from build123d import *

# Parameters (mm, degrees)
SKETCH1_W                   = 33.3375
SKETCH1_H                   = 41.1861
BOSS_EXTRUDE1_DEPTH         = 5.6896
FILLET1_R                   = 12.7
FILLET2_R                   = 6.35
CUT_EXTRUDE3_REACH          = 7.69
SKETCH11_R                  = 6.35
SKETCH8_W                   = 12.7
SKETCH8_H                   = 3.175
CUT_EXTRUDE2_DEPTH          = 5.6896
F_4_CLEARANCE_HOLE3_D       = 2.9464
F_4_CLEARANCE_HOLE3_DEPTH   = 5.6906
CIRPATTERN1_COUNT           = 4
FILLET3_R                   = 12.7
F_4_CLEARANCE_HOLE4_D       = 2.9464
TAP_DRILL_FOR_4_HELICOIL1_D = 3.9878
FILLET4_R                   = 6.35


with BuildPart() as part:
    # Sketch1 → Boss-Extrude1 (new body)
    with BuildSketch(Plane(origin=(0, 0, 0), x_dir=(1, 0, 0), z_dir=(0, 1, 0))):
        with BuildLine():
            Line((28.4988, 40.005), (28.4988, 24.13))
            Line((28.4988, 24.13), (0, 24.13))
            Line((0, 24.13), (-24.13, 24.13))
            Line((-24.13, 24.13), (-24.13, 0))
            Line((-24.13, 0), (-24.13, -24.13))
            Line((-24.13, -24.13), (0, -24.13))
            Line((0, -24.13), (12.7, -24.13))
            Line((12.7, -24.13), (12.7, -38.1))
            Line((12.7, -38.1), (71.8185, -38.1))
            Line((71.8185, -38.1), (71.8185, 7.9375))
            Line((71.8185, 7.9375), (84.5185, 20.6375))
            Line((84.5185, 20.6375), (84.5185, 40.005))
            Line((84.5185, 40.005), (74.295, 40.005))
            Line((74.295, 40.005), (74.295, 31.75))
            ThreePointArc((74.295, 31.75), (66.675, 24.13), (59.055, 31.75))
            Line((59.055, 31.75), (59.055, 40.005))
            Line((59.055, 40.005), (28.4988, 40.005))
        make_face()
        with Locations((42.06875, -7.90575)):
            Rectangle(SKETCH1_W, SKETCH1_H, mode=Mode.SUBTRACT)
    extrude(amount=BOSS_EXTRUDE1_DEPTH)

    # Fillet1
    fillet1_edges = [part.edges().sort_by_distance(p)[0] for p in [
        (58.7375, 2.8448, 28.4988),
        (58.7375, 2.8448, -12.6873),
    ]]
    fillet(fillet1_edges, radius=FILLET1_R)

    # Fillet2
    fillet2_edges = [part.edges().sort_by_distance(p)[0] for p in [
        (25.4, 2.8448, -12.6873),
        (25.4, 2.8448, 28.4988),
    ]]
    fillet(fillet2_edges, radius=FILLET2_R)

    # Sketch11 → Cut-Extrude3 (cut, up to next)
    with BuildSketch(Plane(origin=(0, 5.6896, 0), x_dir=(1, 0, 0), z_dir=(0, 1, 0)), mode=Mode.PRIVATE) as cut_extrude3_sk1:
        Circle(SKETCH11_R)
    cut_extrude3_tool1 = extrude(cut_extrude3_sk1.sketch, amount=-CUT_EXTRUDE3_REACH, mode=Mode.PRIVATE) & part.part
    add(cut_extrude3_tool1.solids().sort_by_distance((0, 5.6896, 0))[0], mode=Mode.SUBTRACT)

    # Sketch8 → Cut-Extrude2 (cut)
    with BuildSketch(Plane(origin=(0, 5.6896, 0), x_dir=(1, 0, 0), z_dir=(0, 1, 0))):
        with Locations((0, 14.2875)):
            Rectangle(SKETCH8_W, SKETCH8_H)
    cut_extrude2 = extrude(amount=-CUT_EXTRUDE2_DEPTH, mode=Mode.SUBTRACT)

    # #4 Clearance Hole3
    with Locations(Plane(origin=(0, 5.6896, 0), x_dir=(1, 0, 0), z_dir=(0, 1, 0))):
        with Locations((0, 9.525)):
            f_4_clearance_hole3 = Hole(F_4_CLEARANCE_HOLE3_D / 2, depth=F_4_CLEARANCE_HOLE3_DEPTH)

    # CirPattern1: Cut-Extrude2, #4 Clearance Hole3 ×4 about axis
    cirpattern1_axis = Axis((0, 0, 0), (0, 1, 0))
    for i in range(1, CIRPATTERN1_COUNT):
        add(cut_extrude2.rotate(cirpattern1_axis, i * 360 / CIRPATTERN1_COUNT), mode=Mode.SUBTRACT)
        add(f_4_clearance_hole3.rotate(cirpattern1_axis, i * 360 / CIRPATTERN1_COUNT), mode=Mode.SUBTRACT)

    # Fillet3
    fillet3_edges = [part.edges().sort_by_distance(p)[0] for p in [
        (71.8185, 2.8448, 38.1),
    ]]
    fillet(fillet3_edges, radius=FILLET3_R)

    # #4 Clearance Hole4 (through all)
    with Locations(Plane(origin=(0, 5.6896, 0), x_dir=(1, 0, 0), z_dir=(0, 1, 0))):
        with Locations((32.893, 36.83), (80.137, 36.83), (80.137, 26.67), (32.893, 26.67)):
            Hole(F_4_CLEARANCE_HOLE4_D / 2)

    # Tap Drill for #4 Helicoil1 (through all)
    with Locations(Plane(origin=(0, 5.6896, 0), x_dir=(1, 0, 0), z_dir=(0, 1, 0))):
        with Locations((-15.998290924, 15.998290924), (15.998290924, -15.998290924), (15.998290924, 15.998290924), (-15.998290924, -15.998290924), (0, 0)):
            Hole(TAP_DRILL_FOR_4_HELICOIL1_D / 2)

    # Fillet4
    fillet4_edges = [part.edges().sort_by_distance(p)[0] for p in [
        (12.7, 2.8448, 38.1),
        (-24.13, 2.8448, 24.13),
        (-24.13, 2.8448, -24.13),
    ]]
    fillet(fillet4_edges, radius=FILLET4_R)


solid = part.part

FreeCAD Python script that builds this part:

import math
import FreeCAD as App
import Part
import Sketcher
from FreeCAD import Vector
Q = App.Units.Quantity


def edges_at(feature, points):
    """Names of the edges that pass closest to the given points."""
    edges = feature.Shape.Edges
    near = lambda p: min(range(len(edges)), key=lambda i: edges[i].distToShape(Part.Vertex(*p))[0])
    return sorted({f"Edge{near(p) + 1}" for p in points})


def add_polygon(sketch, points):
    """Adds a closed chain of lines whose ends are joined by coincident constraints."""
    first, n = sketch.GeometryCount, len(points)
    for a, b in zip(points, points[1:] + points[:1]):
        sketch.addGeometry(Part.LineSegment(App.Vector(*a, 0), App.Vector(*b, 0)), False)
    for i in range(n):
        sketch.addConstraint(Sketcher.Constraint("Coincident", first + i, 2, first + (i + 1) % n, 1))

doc = App.newDocument("Part")
params = doc.addObject("Spreadsheet::Sheet", "Params")
for row, (alias, value) in enumerate([
    ("sketch1_radius", "0.3 in"),
    ("sketch1_height", "1.9 in"),
    ("sketch1_width", "1.45 in"),
    ("sketch1_height2", "0.55 in"),
    ("sketch1_width2", "2.072 in"),
    ("pad1_length", "0.224 in"),
    ("fillet_radius", "0.5 in"),
    ("fillet2_radius", "0.25 in"),
    ("sketch2_diameter", "0.5 in"),
    ("sketch3_width", "0.5 in"),
    ("sketch3_height", "0.125 in"),
    ("pocket2_length", "0.224 in"),
    ("sketch4_diameter", "0.116 in"),
    ("hole_diameter", "0.116 in"),
    ("hole_depth", "5.6906 mm"),
    ("fillet3_radius", "0.5 in"),
    ("sketch5_diameter", "0.116 in"),
    ("hole2_diameter", "0.116 in"),
    ("sketch6_diameter", "0.157 in"),
    ("hole3_diameter", "0.157 in"),
    ("fillet4_radius", "0.25 in"),
], start=1):
    params.set(f"A{row}", alias)
    params.set(f"B{row}", "=" + value)
    params.setAlias(f"B{row}", alias)

body = doc.addObject("PartDesign::Body", "Body")

sketch1 = body.newObject("Sketcher::SketchObject", "Sketch")
sketch1.AttachmentSupport = (doc.getObject("XZ_Plane"), [""])
sketch1.MapMode = "FlatFace"
sketch1.addGeometry(Part.LineSegment(Vector(28, -40, 0), Vector(28, -24, 0)), False)
sketch1.addGeometry(Part.LineSegment(Vector(28, -24, 0), Vector(-24, -24, 0)), False)
sketch1.addGeometry(Part.LineSegment(Vector(-24, -24, 0), Vector(-24, 24, 0)), False)
sketch1.addGeometry(Part.LineSegment(Vector(-24, 24, 0), Vector(13, 24, 0)), False)
sketch1.addGeometry(Part.LineSegment(Vector(13, 24, 0), Vector(13, 38, 0)), False)
sketch1.addGeometry(Part.LineSegment(Vector(13, 38, 0), Vector(72, 38, 0)), False)
sketch1.addGeometry(Part.LineSegment(Vector(72, 38, 0), Vector(72, -8, 0)), False)
sketch1.addGeometry(Part.LineSegment(Vector(72, -8, 0), Vector(85, -21, 0)), False)
sketch1.addGeometry(Part.LineSegment(Vector(85, -21, 0), Vector(85, -40, 0)), False)
sketch1.addGeometry(Part.LineSegment(Vector(85, -40, 0), Vector(74, -40, 0)), False)
sketch1.addGeometry(Part.LineSegment(Vector(74, -40, 0), Vector(74, -32, 0)), False)
sketch1.addGeometry(Part.ArcOfCircle(Part.Circle(Vector(67, -32, 0), Vector(0, 0, 1), 8), math.radians(0), math.radians(180)), False)
sketch1.addGeometry(Part.LineSegment(Vector(59, -32, 0), Vector(59, -40, 0)), False)
sketch1.addGeometry(Part.LineSegment(Vector(59, -40, 0), Vector(28, -40, 0)), False)
add_polygon(sketch1, [(59, 28), (25, 28), (25, -13), (59, -13)])
sketch1.addConstraint([
    Sketcher.Constraint("Coincident", 0, 2, 1, 1),
    Sketcher.Constraint("Coincident", 1, 2, 2, 1),
    Sketcher.Constraint("Coincident", 2, 2, 3, 1),
    Sketcher.Constraint("Coincident", 3, 2, 4, 1),
    Sketcher.Constraint("Coincident", 4, 2, 5, 1),
    Sketcher.Constraint("Coincident", 5, 2, 6, 1),
    Sketcher.Constraint("Coincident", 6, 2, 7, 1),
    Sketcher.Constraint("Coincident", 7, 2, 8, 1),
    Sketcher.Constraint("Coincident", 8, 2, 9, 1),
    Sketcher.Constraint("Coincident", 9, 2, 10, 1),
    Sketcher.Constraint("Tangent", 10, 2, 11, 1),
    Sketcher.Constraint("Tangent", 11, 2, 12, 1),
    Sketcher.Constraint("Coincident", 12, 2, 13, 1),
    Sketcher.Constraint("Coincident", 13, 2, 0, 1),
    Sketcher.Constraint("Vertical", 0),
    Sketcher.Constraint("Horizontal", 1),
    Sketcher.Constraint("Vertical", 2),
    Sketcher.Constraint("Horizontal", 3),
    Sketcher.Constraint("Vertical", 4),
    Sketcher.Constraint("Horizontal", 5),
    Sketcher.Constraint("Vertical", 6),
    Sketcher.Constraint("Vertical", 8),
    Sketcher.Constraint("Horizontal", 9),
    Sketcher.Constraint("Vertical", 10),
    Sketcher.Constraint("Vertical", 12),
    Sketcher.Constraint("Horizontal", 13),
    Sketcher.Constraint("Horizontal", 14),
    Sketcher.Constraint("Vertical", 15),
    Sketcher.Constraint("Horizontal", 16),
    Sketcher.Constraint("Vertical", 17),
    Sketcher.Constraint("Horizontal", 9, 2, 12, 2),
    Sketcher.Constraint("Radius", 11, Q("0.3 in")),
    Sketcher.Constraint("DistanceY", 2, 1, 2, 2, Q("1.9 in")),
    Sketcher.Constraint("DistanceX", -1, 1, 14, 2, Q("1 in")),
    Sketcher.Constraint("Angle", 7, Q("-45 deg")),
    Sketcher.Constraint("DistanceX", 3, 1, 3, 2, Q("1.45 in")),
    Sketcher.Constraint("DistanceY", 4, 1, 4, 2, Q("0.55 in")),
    Sketcher.Constraint("DistanceX", -1, 1, 3, 2, Q("0.5 in")),
    Sketcher.Constraint("DistanceY", -1, 1, 4, 2, Q("1.5 in")),
    Sketcher.Constraint("DistanceY", 11, 3, 0, 2, Q("0.3 in")),
    Sketcher.Constraint("DistanceX", 6, 2, 7, 2, Q("0.5 in")),
    Sketcher.Constraint("DistanceX", 1, 2, 1, 1, Q("2.072 in")),
    Sketcher.Constraint("DistanceX", 13, 2, 13, 1, Q("1.203 in")),
    Sketcher.Constraint("DistanceX", 14, 2, 14, 1, Q("1.3125 in")),
    Sketcher.Constraint("DistanceY", 0, 1, 0, 2, Q("0.625 in")),
    Sketcher.Constraint("DistanceY", 6, 2, 6, 1, Q("1.8125 in")),
    Sketcher.Constraint("DistanceX", 5, 1, 5, 2, Q("2.3275 in")),
    Sketcher.Constraint("DistanceY", 15, 2, 15, 1, Q("1.6215 in")),
    Sketcher.Constraint("DistanceY", -1, 1, 14, 2, Q("1.122 in")),
])
sketch1.setExpression("Constraints[35]", "Params.sketch1_radius")
sketch1.setExpression("Constraints[36]", "Params.sketch1_height")
sketch1.setExpression("Constraints[39]", "Params.sketch1_width")
sketch1.setExpression("Constraints[40]", "Params.sketch1_height2")
sketch1.setExpression("Constraints[45]", "Params.sketch1_width2")
pad1 = body.newObject("PartDesign::Pad", "Pad")
pad1.Profile = sketch1
pad1.setExpression("Length", "Params.pad1_length")
pad1.Reversed = True
doc.recompute()

fillet = body.newObject("PartDesign::Fillet", "Fillet")
fillet.Base = (pad1, edges_at(pad1, [(58.737, 2.845, 28.499), (58.737, 2.845, -12.687)]))
fillet.setExpression("Radius", "Params.fillet_radius")
doc.recompute()

fillet2 = body.newObject("PartDesign::Fillet", "Fillet001")
fillet2.Base = (fillet, edges_at(fillet, [(25.4, 2.845, -12.687), (25.4, 2.845, 28.499)]))
fillet2.setExpression("Radius", "Params.fillet2_radius")

sketch2 = body.newObject("Sketcher::SketchObject", "Sketch001")
sketch2.AttachmentSupport = (doc.getObject("XZ_Plane"), [""])
sketch2.MapMode = "FlatFace"
sketch2.AttachmentOffset = App.Placement(Vector(0, 0, -0.224 * 25.4), App.Rotation())
sketch2.addGeometry(Part.Circle(Vector(0, 0, 0), Vector(0, 0, 1), 6), False)
sketch2.addConstraint([
    Sketcher.Constraint("Coincident", 0, 3, -1, 1),
    Sketcher.Constraint("Diameter", 0, Q("0.5 in")),
])
sketch2.setExpression("Constraints[1]", "Params.sketch2_diameter")
pocket1 = body.newObject("PartDesign::Pocket", "Pocket")
pocket1.Profile = sketch2
pocket1.Type = "UpToFirst"
pocket1.Reversed = True

sketch3 = body.newObject("Sketcher::SketchObject", "Sketch002")
sketch3.AttachmentSupport = (doc.getObject("XZ_Plane"), [""])
sketch3.MapMode = "FlatFace"
sketch3.AttachmentOffset = App.Placement(Vector(0, 0, -0.224 * 25.4), App.Rotation())
add_polygon(sketch3, [(-6.3, -15.9), (-6.3, -12.7), (6.3, -12.7), (6.3, -15.9)])
sketch3.addConstraint([
    Sketcher.Constraint("Vertical", 0),
    Sketcher.Constraint("Horizontal", 1),
    Sketcher.Constraint("Vertical", 2),
    Sketcher.Constraint("Horizontal", 3),
    Sketcher.Constraint("DistanceX", 1, 1, 1, 2, Q("0.5 in")),
    Sketcher.Constraint("DistanceY", 0, 2, -1, 1, Q("0.5 in")),
    Sketcher.Constraint("DistanceY", 0, 1, 0, 2, Q("0.125 in")),
    Sketcher.Constraint("DistanceX", 0, 2, -1, 1, Q("0.25 in")),
])
sketch3.setExpression("Constraints[8]", "Params.sketch3_width")
sketch3.setExpression("Constraints[10]", "Params.sketch3_height")
pocket2 = body.newObject("PartDesign::Pocket", "Pocket001")
pocket2.Profile = sketch3
pocket2.setExpression("Length", "Params.pocket2_length")
pocket2.Reversed = True

sketch4 = body.newObject("Sketcher::SketchObject", "Sketch003")
sketch4.AttachmentSupport = (doc.getObject("XZ_Plane"), [""])
sketch4.MapMode = "FlatFace"
sketch4.AttachmentOffset = App.Placement(Vector(0, 0, -0.224 * 25.4), App.Rotation())
sketch4.addGeometry(Part.Circle(Vector(0, -9.5, 0), Vector(0, 0, 1), 1.5), False)
sketch4.addConstraint([
    Sketcher.Constraint("PointOnObject", 0, 3, -2),
    Sketcher.Constraint("Diameter", 0, Q("0.116 in")),
    Sketcher.Constraint("DistanceY", 0, 3, -1, 1, Q("0.375 in")),
])
sketch4.setExpression("Constraints[1]", "Params.sketch4_diameter")
doc.recompute()
hole = body.newObject("PartDesign::Hole", "Hole")
hole.Profile = sketch4
hole.ThreadType = "None"
hole.setExpression("Diameter", "Params.hole_diameter")
hole.DepthType = "Dimension"
hole.setExpression("Depth", "Params.hole_depth")
hole.DrillPoint = "Flat"
hole.Reversed = True
doc.recompute()

polarpattern = body.newObject("PartDesign::PolarPattern", "PolarPattern")
polarpattern.Originals = [pocket2, hole]
polarpattern.Axis = (doc.getObject("Y_Axis"), [""])
polarpattern.Angle = 360
polarpattern.Occurrences = 4
body.Tip = polarpattern
doc.recompute()

fillet3 = body.newObject("PartDesign::Fillet", "Fillet002")
fillet3.Base = (polarpattern, edges_at(polarpattern, [(71.819, 2.845, 38.1)]))
fillet3.setExpression("Radius", "Params.fillet3_radius")

sketch5 = body.newObject("Sketcher::SketchObject", "Sketch004")
sketch5.AttachmentSupport = (doc.getObject("XZ_Plane"), [""])
sketch5.MapMode = "FlatFace"
sketch5.AttachmentOffset = App.Placement(Vector(0, 0, -0.224 * 25.4), App.Rotation())
sketch5.addGeometry([
    Part.Circle(Vector(32.9, -36.8, 0), Vector(0, 0, 1), 1.5),
    Part.Circle(Vector(80.1, -36.8, 0), Vector(0, 0, 1), 1.5),
    Part.Circle(Vector(80.1, -26.7, 0), Vector(0, 0, 1), 1.5),
    Part.Circle(Vector(32.9, -26.7, 0), Vector(0, 0, 1), 1.5),
], False)
sketch5.addConstraint([
    Sketcher.Constraint("Equal", 0, 1),
    Sketcher.Constraint("Equal", 1, 2),
    Sketcher.Constraint("Equal", 2, 3),
    Sketcher.Constraint("Horizontal", 0, 3, 1, 3),
    Sketcher.Constraint("Horizontal", 2, 3, 3, 3),
    Sketcher.Constraint("Vertical", 1, 3, 2, 3),
    Sketcher.Constraint("Vertical", 0, 3, 3, 3),
    Sketcher.Constraint("Diameter", 0, Q("0.116 in")),
    Sketcher.Constraint("DistanceY", 1, 3, 2, 3, Q("0.4 in")),
    Sketcher.Constraint("DistanceY", 0, 3, -1, 1, Q("1.45 in")),
    Sketcher.Constraint("DistanceX", 0, 3, 1, 3, Q("1.86 in")),
    Sketcher.Constraint("DistanceX", -1, 1, 0, 3, Q("1.295 in")),
])
sketch5.setExpression("Constraints[7]", "Params.sketch5_diameter")
doc.recompute()
hole2 = body.newObject("PartDesign::Hole", "Hole001")
hole2.Profile = sketch5
hole2.ThreadType = "None"
hole2.setExpression("Diameter", "Params.hole2_diameter")
hole2.DepthType = "ThroughAll"
hole2.Reversed = True

sketch6 = body.newObject("Sketcher::SketchObject", "Sketch005")
sketch6.AttachmentSupport = (doc.getObject("XZ_Plane"), [""])
sketch6.MapMode = "FlatFace"
sketch6.AttachmentOffset = App.Placement(Vector(0, 0, -0.224 * 25.4), App.Rotation())
sketch6.addGeometry([
    Part.Circle(Vector(-16, -16, 0), Vector(0, 0, 1), 2),
    Part.Circle(Vector(16, 16, 0), Vector(0, 0, 1), 2),
    Part.Circle(Vector(16, -16, 0), Vector(0, 0, 1), 2),
    Part.Circle(Vector(-16, 16, 0), Vector(0, 0, 1), 2),
    Part.Circle(Vector(0, 0, 0), Vector(0, 0, 1), 2),
], False)
sketch6.addConstraint([
    Sketcher.Constraint("Coincident", 4, 3, -1, 1),
    Sketcher.Constraint("Equal", 0, 1),
    Sketcher.Constraint("Equal", 1, 2),
    Sketcher.Constraint("Equal", 2, 3),
    Sketcher.Constraint("Equal", 3, 4),
    Sketcher.Constraint("Symmetric", 0, 3, 1, 3, -1, 1),
    Sketcher.Constraint("Symmetric", 2, 3, 3, 3, -1, 1),
    Sketcher.Constraint("Symmetric", 0, 3, 2, 3, -2),
    Sketcher.Constraint("Diameter", 0, Q("0.157 in")),
    Sketcher.Constraint("DistanceX", 0, 3, -1, 1, 15.998291),
    Sketcher.Constraint("DistanceY", 0, 3, -1, 1, 15.998291),
])
sketch6.setExpression("Constraints[8]", "Params.sketch6_diameter")
doc.recompute()
hole3 = body.newObject("PartDesign::Hole", "Hole002")
hole3.Profile = sketch6
hole3.ThreadType = "None"
hole3.setExpression("Diameter", "Params.hole3_diameter")
hole3.DepthType = "ThroughAll"
hole3.Reversed = True
doc.recompute()

fillet4 = body.newObject("PartDesign::Fillet", "Fillet003")
fillet4.Base = (hole3, edges_at(hole3, [(12.7, 2.845, 38.1), (-24.13, 2.845, 24.13), (-24.13, 2.845, -24.13)]))
fillet4.setExpression("Radius", "Params.fillet4_radius")

doc.recompute()
